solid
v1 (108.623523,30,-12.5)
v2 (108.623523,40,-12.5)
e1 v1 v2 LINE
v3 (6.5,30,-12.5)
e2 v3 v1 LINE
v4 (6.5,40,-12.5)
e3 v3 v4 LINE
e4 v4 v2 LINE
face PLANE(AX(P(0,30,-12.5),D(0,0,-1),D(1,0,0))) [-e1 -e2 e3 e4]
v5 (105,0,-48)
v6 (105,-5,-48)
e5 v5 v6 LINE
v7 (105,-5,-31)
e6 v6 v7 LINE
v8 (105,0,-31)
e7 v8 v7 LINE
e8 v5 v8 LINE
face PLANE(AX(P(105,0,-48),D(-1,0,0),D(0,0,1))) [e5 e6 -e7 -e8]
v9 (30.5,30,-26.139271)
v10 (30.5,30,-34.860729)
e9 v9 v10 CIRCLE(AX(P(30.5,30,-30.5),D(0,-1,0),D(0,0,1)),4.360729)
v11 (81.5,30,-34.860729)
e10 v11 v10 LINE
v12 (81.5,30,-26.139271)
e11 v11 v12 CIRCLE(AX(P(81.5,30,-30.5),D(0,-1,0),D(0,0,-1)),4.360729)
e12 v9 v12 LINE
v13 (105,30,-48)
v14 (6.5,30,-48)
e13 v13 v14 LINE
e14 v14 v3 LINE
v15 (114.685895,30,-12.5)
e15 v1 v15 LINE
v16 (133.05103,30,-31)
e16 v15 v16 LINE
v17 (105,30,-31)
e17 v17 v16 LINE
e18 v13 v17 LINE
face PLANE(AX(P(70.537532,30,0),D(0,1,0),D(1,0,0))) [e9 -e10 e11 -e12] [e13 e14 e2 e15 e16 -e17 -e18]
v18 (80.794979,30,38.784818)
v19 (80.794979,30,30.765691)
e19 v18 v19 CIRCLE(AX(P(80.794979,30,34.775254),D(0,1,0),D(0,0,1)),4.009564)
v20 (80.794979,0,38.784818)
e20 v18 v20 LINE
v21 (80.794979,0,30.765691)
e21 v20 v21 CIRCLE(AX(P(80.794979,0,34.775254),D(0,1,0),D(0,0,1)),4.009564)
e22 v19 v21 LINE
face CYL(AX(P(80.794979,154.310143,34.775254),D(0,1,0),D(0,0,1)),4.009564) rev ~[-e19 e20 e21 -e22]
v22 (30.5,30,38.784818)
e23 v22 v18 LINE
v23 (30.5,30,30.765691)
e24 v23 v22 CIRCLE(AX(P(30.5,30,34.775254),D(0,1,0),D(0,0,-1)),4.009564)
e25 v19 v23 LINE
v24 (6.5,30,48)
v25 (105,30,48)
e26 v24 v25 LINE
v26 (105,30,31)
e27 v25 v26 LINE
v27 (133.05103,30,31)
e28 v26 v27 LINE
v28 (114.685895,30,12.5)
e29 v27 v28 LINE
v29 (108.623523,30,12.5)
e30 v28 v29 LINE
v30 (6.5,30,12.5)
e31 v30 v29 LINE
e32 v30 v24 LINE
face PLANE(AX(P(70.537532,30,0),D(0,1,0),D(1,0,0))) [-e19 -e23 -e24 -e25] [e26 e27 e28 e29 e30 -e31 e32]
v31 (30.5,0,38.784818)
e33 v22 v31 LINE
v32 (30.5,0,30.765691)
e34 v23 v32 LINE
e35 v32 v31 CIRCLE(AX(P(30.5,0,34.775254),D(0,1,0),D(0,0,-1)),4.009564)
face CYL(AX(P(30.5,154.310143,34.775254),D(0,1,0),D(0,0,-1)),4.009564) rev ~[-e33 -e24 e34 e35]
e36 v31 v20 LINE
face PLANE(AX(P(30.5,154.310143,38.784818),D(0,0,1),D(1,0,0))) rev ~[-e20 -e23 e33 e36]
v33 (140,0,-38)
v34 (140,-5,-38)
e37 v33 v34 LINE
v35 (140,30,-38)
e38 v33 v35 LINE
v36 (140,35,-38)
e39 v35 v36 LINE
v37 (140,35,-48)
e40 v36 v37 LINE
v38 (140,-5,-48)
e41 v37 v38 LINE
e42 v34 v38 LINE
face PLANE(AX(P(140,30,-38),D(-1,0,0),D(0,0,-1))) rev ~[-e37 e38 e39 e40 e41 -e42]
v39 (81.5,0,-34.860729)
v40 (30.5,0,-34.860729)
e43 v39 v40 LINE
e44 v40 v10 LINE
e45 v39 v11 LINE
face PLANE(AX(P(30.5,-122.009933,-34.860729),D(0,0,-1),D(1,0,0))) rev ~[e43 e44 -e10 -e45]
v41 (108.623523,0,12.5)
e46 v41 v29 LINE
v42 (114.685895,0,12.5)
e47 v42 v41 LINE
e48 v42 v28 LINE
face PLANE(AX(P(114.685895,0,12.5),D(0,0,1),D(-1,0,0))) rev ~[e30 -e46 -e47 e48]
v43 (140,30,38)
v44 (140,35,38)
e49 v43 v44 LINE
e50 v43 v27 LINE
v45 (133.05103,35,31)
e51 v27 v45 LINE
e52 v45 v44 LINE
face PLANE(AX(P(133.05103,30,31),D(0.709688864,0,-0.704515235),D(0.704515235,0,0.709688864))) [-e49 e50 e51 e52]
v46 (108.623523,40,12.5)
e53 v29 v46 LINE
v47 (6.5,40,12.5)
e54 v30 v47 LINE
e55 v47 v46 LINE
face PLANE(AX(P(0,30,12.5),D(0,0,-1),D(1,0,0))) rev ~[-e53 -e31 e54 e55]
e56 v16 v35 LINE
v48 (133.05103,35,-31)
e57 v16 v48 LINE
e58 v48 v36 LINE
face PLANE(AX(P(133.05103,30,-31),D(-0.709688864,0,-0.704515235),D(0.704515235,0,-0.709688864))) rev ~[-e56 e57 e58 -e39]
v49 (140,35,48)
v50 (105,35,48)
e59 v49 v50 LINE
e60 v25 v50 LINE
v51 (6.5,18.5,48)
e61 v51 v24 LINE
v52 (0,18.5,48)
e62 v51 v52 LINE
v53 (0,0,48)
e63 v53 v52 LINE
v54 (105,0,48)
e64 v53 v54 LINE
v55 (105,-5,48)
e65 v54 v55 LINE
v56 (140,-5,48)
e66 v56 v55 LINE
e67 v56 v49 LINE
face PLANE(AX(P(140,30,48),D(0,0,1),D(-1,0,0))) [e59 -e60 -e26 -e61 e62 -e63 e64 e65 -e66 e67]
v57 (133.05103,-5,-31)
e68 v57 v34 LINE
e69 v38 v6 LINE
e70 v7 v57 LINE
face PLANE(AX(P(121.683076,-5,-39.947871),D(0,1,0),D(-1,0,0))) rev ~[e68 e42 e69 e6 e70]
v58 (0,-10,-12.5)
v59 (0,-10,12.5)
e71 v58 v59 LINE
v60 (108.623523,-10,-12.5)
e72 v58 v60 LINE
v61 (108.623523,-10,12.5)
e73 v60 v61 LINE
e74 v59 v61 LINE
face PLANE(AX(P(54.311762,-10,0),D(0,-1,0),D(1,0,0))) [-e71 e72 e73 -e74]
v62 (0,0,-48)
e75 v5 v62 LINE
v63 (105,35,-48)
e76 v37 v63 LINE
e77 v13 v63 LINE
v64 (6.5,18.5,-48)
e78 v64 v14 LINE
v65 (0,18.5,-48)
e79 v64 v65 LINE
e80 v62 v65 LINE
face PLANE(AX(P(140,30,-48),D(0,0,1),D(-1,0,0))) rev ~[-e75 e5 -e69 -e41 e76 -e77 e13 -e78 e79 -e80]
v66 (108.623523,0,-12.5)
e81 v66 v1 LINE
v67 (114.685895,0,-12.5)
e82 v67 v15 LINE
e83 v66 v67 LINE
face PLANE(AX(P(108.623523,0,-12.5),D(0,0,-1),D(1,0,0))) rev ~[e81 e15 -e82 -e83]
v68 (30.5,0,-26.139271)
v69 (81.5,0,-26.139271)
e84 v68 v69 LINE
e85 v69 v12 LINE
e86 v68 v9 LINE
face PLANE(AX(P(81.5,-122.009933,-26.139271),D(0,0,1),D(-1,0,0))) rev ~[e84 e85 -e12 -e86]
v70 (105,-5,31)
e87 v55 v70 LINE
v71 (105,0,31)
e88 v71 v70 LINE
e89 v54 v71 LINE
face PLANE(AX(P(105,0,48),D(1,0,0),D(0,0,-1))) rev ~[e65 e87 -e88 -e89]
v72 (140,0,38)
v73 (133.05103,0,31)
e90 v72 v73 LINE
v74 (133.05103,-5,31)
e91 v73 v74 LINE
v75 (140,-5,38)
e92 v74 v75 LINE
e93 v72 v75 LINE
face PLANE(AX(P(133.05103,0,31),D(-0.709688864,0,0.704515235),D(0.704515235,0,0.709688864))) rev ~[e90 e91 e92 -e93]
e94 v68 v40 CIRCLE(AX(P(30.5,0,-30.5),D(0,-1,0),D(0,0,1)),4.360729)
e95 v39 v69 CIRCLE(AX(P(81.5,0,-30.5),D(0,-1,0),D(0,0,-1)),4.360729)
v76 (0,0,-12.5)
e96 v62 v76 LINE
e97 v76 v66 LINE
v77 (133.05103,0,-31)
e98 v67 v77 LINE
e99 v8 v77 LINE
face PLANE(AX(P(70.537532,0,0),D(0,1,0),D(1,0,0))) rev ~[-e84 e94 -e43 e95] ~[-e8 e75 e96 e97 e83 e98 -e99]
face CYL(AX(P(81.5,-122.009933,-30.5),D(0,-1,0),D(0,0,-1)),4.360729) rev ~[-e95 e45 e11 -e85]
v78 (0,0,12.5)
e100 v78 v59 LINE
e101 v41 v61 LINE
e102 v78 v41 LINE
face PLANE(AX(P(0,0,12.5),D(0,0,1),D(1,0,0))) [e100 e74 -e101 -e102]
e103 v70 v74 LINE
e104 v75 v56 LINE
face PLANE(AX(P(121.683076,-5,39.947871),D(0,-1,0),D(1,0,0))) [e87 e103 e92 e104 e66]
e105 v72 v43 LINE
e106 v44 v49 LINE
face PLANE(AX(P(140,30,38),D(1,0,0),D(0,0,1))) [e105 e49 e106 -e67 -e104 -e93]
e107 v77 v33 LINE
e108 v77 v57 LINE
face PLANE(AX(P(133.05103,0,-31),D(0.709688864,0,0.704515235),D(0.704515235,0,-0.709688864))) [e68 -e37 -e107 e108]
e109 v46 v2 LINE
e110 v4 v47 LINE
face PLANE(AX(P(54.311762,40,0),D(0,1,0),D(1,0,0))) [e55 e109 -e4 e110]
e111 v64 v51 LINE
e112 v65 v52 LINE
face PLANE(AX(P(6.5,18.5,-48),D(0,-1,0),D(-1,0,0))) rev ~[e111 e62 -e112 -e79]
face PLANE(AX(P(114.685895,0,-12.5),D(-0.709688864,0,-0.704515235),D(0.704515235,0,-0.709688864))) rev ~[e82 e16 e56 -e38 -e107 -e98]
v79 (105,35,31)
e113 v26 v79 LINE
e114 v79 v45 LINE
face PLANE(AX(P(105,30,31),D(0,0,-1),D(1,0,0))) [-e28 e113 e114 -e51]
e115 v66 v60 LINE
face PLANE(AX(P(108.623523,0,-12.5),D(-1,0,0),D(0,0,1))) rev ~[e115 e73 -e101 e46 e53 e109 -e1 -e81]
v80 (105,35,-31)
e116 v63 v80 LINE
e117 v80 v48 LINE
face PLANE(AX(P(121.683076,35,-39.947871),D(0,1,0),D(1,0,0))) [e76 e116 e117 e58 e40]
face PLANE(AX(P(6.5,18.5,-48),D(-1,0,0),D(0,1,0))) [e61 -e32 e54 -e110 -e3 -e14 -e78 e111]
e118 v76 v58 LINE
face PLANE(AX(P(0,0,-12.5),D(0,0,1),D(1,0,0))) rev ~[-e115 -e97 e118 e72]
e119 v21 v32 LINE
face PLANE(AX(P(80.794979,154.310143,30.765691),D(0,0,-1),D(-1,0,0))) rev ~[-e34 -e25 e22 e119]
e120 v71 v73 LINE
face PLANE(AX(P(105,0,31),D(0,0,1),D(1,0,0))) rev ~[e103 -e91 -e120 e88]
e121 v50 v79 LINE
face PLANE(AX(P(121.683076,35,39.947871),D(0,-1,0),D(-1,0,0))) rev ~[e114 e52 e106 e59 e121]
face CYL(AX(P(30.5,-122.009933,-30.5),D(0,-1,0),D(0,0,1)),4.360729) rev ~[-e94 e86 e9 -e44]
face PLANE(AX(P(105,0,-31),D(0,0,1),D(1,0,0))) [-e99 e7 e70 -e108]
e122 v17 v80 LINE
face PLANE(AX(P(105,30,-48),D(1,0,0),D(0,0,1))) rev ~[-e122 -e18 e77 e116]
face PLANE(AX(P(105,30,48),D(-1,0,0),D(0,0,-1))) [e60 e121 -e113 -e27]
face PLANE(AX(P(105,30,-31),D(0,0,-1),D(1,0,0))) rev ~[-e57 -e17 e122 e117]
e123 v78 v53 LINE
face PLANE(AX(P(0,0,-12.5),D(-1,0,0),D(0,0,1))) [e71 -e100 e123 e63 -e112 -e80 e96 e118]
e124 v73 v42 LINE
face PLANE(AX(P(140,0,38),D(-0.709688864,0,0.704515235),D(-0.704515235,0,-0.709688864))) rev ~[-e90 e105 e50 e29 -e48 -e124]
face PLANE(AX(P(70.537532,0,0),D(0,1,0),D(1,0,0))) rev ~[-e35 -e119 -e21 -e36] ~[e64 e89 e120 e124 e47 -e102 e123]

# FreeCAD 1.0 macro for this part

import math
import FreeCAD as App
import Part
import Sketcher
from FreeCAD import Vector
Q = App.Units.Quantity


def add_polygon(sketch, points):
    """Adds a closed chain of lines whose ends are joined by coincident constraints."""
    first, n = sketch.GeometryCount, len(points)
    for a, b in zip(points, points[1:] + points[:1]):
        sketch.addGeometry(Part.LineSegment(App.Vector(*a, 0), App.Vector(*b, 0)), False)
    for i in range(n):
        sketch.addConstraint(Sketcher.Constraint("Coincident", first + i, 2, first + (i + 1) % n, 1))

doc = App.newDocument("Part")
body = doc.addObject("PartDesign::Body", "Body")

# Sketch on XZ plane
sketch1 = body.newObject("Sketcher::SketchObject", "Sketch")
sketch1.AttachmentSupport = (doc.getObject("XZ_Plane"), [""])
sketch1.MapMode = "FlatFace"
add_polygon(sketch1, [(0, 48), (140, 48), (140, 38), (114.685895, 12.5), (108.623523, 12.5), (108.623523, -12.5), (114.685895, -12.5), (140, -38), (140, -48), (0, -48)])  # lines 0-9
sketch1.addConstraint([
    Sketcher.Constraint("Horizontal", 0),
    Sketcher.Constraint("Vertical", 1),
    Sketcher.Constraint("Horizontal", 3),
    Sketcher.Constraint("Vertical", 4),
    Sketcher.Constraint("Horizontal", 5),
    Sketcher.Constraint("Vertical", 7),
    Sketcher.Constraint("Horizontal", 8),
    Sketcher.Constraint("Vertical", 9),
    Sketcher.Constraint("Symmetric", 8, 2, 9, 2, -1, 1),
    Sketcher.Constraint("Symmetric", 2, 2, 5, 2, -1),
    Sketcher.Constraint("Symmetric", 1, 2, 6, 2, -1),
    Sketcher.Constraint("DistanceX", 0, 1, 0, 2, Q("140 mm")),
    Sketcher.Constraint("DistanceY", 1, 2, 1, 1, Q("10 mm")),
    Sketcher.Constraint("DistanceY", 4, 2, 4, 1, Q("25 mm")),
    Sketcher.Constraint("DistanceY", 9, 1, 9, 2, Q("96 mm")),
    Sketcher.Constraint("DistanceX", 3, 2, 3, 1, Q("6.062372 mm")),
    Sketcher.Constraint("Distance", 2, Q("35.931239 mm")),
])
pad1 = body.newObject("PartDesign::Pad", "Pad")
pad1.Profile = sketch1
pad1.Length = 30
pad1.Reversed = True

# Sketch on XZ plane
sketch2 = body.newObject("Sketcher::SketchObject", "Sketch001")
sketch2.AttachmentSupport = (doc.getObject("XZ_Plane"), [""])
sketch2.MapMode = "FlatFace"
sketch2.AttachmentOffset = App.Placement(Vector(0, 0, -30), App.Rotation())
add_polygon(sketch2, [(0, -12.5), (0, 12.5), (108.623523, 12.5), (108.623523, -12.5)])  # lines 0-3
sketch2.addConstraint([
    Sketcher.Constraint("Vertical", 0),
    Sketcher.Constraint("Horizontal", 1),
    Sketcher.Constraint("Vertical", 2),
    Sketcher.Constraint("Horizontal", 3),
    Sketcher.Constraint("Symmetric", 0, 2, 3, 2, -1, 1),
    Sketcher.Constraint("DistanceY", 0, 1, 0, 2, Q("25 mm")),
    Sketcher.Constraint("DistanceX", 1, 1, 1, 2, Q("108.623523 mm")),
])
pad2 = body.newObject("PartDesign::Pad", "Pad001")
pad2.Profile = sketch2
pad2.Length = 10
pad2.Reversed = True

# Sketch on XZ plane
sketch3 = body.newObject("Sketcher::SketchObject", "Sketch002")
sketch3.AttachmentSupport = (doc.getObject("XZ_Plane"), [""])
sketch3.MapMode = "FlatFace"
sketch3.AttachmentOffset = App.Placement(Vector(0, 0, -30), App.Rotation())
sketch3.addGeometry([
    Part.LineSegment(Vector(81.5, -34.860729, 0), Vector(30.5, -34.860729, 0)),
    Part.ArcOfCircle(Part.Circle(Vector(30.5, -30.5, 0), Vector(0, 0, 1), 4.360729), math.radians(90), math.radians(270)),
    Part.LineSegment(Vector(30.5, -26.139271, 0), Vector(81.5, -26.139271, 0)),
    Part.ArcOfCircle(Part.Circle(Vector(81.5, -30.5, 0), Vector(0, 0, 1), 4.360729), math.radians(-90), math.radians(90)),
], False)
sketch3.addConstraint([
    Sketcher.Constraint("Tangent", 0, 2, 1, 2),
    Sketcher.Constraint("Tangent", 1, 1, 2, 1),
    Sketcher.Constraint("Tangent", 2, 2, 3, 2),
    Sketcher.Constraint("Tangent", 3, 1, 0, 1),
    Sketcher.Constraint("Horizontal", 0),
    Sketcher.Constraint("Horizontal", 2),
    Sketcher.Constraint("DistanceX", 0, 2, 0, 1, Q("51 mm")),
    Sketcher.Constraint("DistanceX", -1, 1, 1, 3, Q("30.5 mm")),
    Sketcher.Constraint("DistanceY", 1, 3, -1, 1, Q("30.5 mm")),
    Sketcher.Constraint("Radius", 1, Q("4.360729 mm")),
])
pocket1 = body.newObject("PartDesign::Pocket", "Pocket")
pocket1.Profile = sketch3
pocket1.Type = "ThroughAll"
pocket1.Midplane = True

# Sketch on XZ plane
sketch4 = body.newObject("Sketcher::SketchObject", "Sketch003")
sketch4.AttachmentSupport = (doc.getObject("XZ_Plane"), [""])
sketch4.MapMode = "FlatFace"
add_polygon(sketch4, [(0, 12.5), (0, -12.5), (108.623523, -12.5), (108.623523, 12.5)])  # lines 0-3
sketch4.addConstraint([
    Sketcher.Constraint("Vertical", 0),
    Sketcher.Constraint("Horizontal", 1),
    Sketcher.Constraint("Vertical", 2),
    Sketcher.Constraint("Horizontal", 3),
    Sketcher.Constraint("Symmetric", 0, 2, 3, 2, -1, 1),
    Sketcher.Constraint("DistanceY", 0, 2, 0, 1, Q("25 mm")),
    Sketcher.Constraint("DistanceX", 1, 1, 1, 2, Q("108.623523 mm")),
])
pad3 = body.newObject("PartDesign::Pad", "Pad002")
pad3.Profile = sketch4
pad3.Length = 10

# Sketch on XZ plane
sketch5 = body.newObject("Sketcher::SketchObject", "Sketch004")
sketch5.AttachmentSupport = (doc.getObject("XZ_Plane"), [""])
sketch5.MapMode = "FlatFace"
sketch5.addGeometry([
    Part.LineSegment(Vector(80.794979, 38.784818, 0), Vector(30.5, 38.784818, 0)),
    Part.ArcOfCircle(Part.Circle(Vector(30.5, 34.775254, 0), Vector(0, 0, 1), 4.009564), math.radians(90), math.radians(270)),
    Part.LineSegment(Vector(30.5, 30.765691, 0), Vector(80.794979, 30.765691, 0)),
    Part.ArcOfCircle(Part.Circle(Vector(80.794979, 34.775254, 0), Vector(0, 0, 1), 4.009564), math.radians(-90), math.radians(90)),
], False)
sketch5.addConstraint([
    Sketcher.Constraint("Tangent", 0, 2, 1, 1),
    Sketcher.Constraint("Tangent", 1, 2, 2, 1),
    Sketcher.Constraint("Tangent", 2, 2, 3, 1),
    Sketcher.Constraint("Tangent", 3, 2, 0, 1),
    Sketcher.Constraint("Horizontal", 0),
    Sketcher.Constraint("Horizontal", 2),
    Sketcher.Constraint("DistanceX", -1, 1, 1, 3, Q("30.5 mm")),
    Sketcher.Constraint("Radius", 1, Q("4.009564 mm")),
    Sketcher.Constraint("DistanceX", 0, 2, 0, 1, Q("50.294979 mm")),
    Sketcher.Constraint("DistanceY", -1, 1, 0, 2, Q("38.784818 mm")),
])
pocket2 = body.newObject("PartDesign::Pocket", "Pocket001")
pocket2.Profile = sketch5
pocket2.Type = "ThroughAll"
pocket2.Midplane = True

# Sketch on XZ plane
sketch6 = body.newObject("Sketcher::SketchObject", "Sketch005")
sketch6.AttachmentSupport = (doc.getObject("XZ_Plane"), [""])
sketch6.MapMode = "FlatFace"
sketch6.AttachmentOffset = App.Placement(Vector(0, 0, -30), App.Rotation())
add_polygon(sketch6, [(140, -48), (105, -48), (105, -31), (133.05103, -31), (140, -38)])  # lines 0-4
sketch6.addConstraint([
    Sketcher.Constraint("Horizontal", 0),
    Sketcher.Constraint("Vertical", 1),
    Sketcher.Constraint("Horizontal", 2),
    Sketcher.Constraint("Vertical", 4),
    Sketcher.Constraint("DistanceX", 0, 2, 0, 1, Q("35 mm")),
    Sketcher.Constraint("DistanceY", 1, 1, 1, 2, Q("17 mm")),
    Sketcher.Constraint("DistanceY", 4, 2, 4, 1, Q("10 mm")),
    Sketcher.Constraint("DistanceX", -1, 1, 0, 2, Q("105 mm")),
    Sketcher.Constraint("DistanceY", 0, 2, -1, 1, Q("48 mm")),
    Sketcher.Constraint("DistanceX", 2, 1, 2, 2, Q("28.05103 mm")),
])
pad4 = body.newObject("PartDesign::Pad", "Pad003")
pad4.Profile = sketch6
pad4.Length = 5
pad4.Reversed = True

# Sketch on XZ plane
sketch7 = body.newObject("Sketcher::SketchObject", "Sketch006")
sketch7.AttachmentSupport = (doc.getObject("XZ_Plane"), [""])
sketch7.MapMode = "FlatFace"
add_polygon(sketch7, [(140, 48), (105, 48), (105, 31), (133.05103, 31), (140, 38)])  # lines 0-4
add_polygon(sketch7, [(105, -31), (105, -48), (140, -48), (140, -38), (133.05103, -31)])  # lines 5-9
sketch7.addConstraint([
    Sketcher.Constraint("Horizontal", 0),
    Sketcher.Constraint("Vertical", 1),
    Sketcher.Constraint("Horizontal", 2),
    Sketcher.Constraint("Vertical", 4),
    Sketcher.Constraint("Vertical", 5),
    Sketcher.Constraint("Horizontal", 6),
    Sketcher.Constraint("Vertical", 7),
    Sketcher.Constraint("Horizontal", 9),
    Sketcher.Constraint("Symmetric", 0, 2, 5, 2, -1),
    Sketcher.Constraint("Symmetric", 3, 2, 7, 2, -1),
    Sketcher.Constraint("Symmetric", 2, 2, 8, 2, -1),
    Sketcher.Constraint("DistanceX", 0, 2, 0, 1, Q("35 mm")),
    Sketcher.Constraint("DistanceY", 1, 2, 1, 1, Q("17 mm")),
    Sketcher.Constraint("DistanceY", 4, 1, 4, 2, Q("10 mm")),
    Sketcher.Constraint("DistanceX", -1, 1, 0, 2, Q("105 mm")),
    Sketcher.Constraint("DistanceY", -1, 1, 0, 2, Q("48 mm")),
    Sketcher.Constraint("DistanceX", 2, 1, 2, 2, Q("28.05103 mm")),
])
pad5 = body.newObject("PartDesign::Pad", "Pad004")
pad5.Profile = sketch7
pad5.Length = 5

# Sketch on XZ plane
sketch8 = body.newObject("Sketcher::SketchObject", "Sketch007")
sketch8.AttachmentSupport = (doc.getObject("XZ_Plane"), [""])
sketch8.MapMode = "FlatFace"
sketch8.AttachmentOffset = App.Placement(Vector(0, 0, -30), App.Rotation())
add_polygon(sketch8, [(105, 31), (105, 48), (140, 48), (140, 38), (133.05103, 31)])  # lines 0-4
sketch8.addConstraint([
    Sketcher.Constraint("Vertical", 0),
    Sketcher.Constraint("Horizontal", 1),
    Sketcher.Constraint("Vertical", 2),
    Sketcher.Constraint("Horizontal", 4),
    Sketcher.Constraint("DistanceX", 1, 1, 1, 2, Q("35 mm")),
    Sketcher.Constraint("DistanceY", 0, 1, 0, 2, Q("17 mm")),
    Sketcher.Constraint("DistanceY", 2, 2, 2, 1, Q("10 mm")),
    Sketcher.Constraint("DistanceX", -1, 1, 0, 2, Q("105 mm")),
    Sketcher.Constraint("DistanceY", -1, 1, 0, 2, Q("48 mm")),
    Sketcher.Constraint("DistanceX", 4, 2, 4, 1, Q("28.05103 mm")),
])
pad6 = body.newObject("PartDesign::Pad", "Pad005")
pad6.Profile = sketch8
pad6.Length = 5
pad6.Reversed = True

# Sketch on XY plane
sketch9 = body.newObject("Sketcher::SketchObject", "Sketch008")
sketch9.AttachmentSupport = (doc.getObject("XY_Plane"), [""])
sketch9.MapMode = "FlatFace"
sketch9.AttachmentOffset = App.Placement(Vector(0, 0, -48), App.Rotation())
add_polygon(sketch9, [(6.5, 30), (6.5, 18.5), (0, 18.5), (0, 30)])  # lines 0-3
sketch9.addConstraint([
    Sketcher.Constraint("Vertical", 0),
    Sketcher.Constraint("Horizontal", 1),
    Sketcher.Constraint("Vertical", 2),
    Sketcher.Constraint("Horizontal", 3),
    Sketcher.Constraint("PointOnObject", 1, 2, -2),
    Sketcher.Constraint("DistanceX", 1, 2, 1, 1, Q("6.5 mm")),
    Sketcher.Constraint("DistanceY", 0, 2, 0, 1, Q("11.5 mm")),
    Sketcher.Constraint("DistanceY", -1, 1, 2, 2, Q("30 mm")),
])
pocket3 = body.newObject("PartDesign::Pocket", "Pocket002")
pocket3.Profile = sketch9
pocket3.Type = "UpToFirst"
pocket3.Reversed = True

# Sketch on XY plane
sketch10 = body.newObject("Sketcher::SketchObject", "Sketch009")
sketch10.AttachmentSupport = (doc.getObject("XY_Plane"), [""])
sketch10.MapMode = "FlatFace"
sketch10.AttachmentOffset = App.Placement(Vector(0, 0, -12.5), App.Rotation())
add_polygon(sketch10, [(6.5, 40), (6.5, 30), (0, 30), (0, 40)])  # lines 0-3
sketch10.addConstraint([
    Sketcher.Constraint("Vertical", 0),
    Sketcher.Constraint("Horizontal", 1),
    Sketcher.Constraint("Vertical", 2),
    Sketcher.Constraint("Horizontal", 3),
    Sketcher.Constraint("PointOnObject", 1, 2, -2),
    Sketcher.Constraint("DistanceY", 0, 2, 0, 1, Q("10 mm")),
    Sketcher.Constraint("DistanceX", 1, 2, 1, 1, Q("6.5 mm")),
    Sketcher.Constraint("DistanceY", -1, 1, 0, 2, Q("30 mm")),
])
pocket4 = body.newObject("PartDesign::Pocket", "Pocket003")
pocket4.Profile = sketch10
pocket4.Type = "ThroughAll"
pocket4.Reversed = True

doc.recompute()
